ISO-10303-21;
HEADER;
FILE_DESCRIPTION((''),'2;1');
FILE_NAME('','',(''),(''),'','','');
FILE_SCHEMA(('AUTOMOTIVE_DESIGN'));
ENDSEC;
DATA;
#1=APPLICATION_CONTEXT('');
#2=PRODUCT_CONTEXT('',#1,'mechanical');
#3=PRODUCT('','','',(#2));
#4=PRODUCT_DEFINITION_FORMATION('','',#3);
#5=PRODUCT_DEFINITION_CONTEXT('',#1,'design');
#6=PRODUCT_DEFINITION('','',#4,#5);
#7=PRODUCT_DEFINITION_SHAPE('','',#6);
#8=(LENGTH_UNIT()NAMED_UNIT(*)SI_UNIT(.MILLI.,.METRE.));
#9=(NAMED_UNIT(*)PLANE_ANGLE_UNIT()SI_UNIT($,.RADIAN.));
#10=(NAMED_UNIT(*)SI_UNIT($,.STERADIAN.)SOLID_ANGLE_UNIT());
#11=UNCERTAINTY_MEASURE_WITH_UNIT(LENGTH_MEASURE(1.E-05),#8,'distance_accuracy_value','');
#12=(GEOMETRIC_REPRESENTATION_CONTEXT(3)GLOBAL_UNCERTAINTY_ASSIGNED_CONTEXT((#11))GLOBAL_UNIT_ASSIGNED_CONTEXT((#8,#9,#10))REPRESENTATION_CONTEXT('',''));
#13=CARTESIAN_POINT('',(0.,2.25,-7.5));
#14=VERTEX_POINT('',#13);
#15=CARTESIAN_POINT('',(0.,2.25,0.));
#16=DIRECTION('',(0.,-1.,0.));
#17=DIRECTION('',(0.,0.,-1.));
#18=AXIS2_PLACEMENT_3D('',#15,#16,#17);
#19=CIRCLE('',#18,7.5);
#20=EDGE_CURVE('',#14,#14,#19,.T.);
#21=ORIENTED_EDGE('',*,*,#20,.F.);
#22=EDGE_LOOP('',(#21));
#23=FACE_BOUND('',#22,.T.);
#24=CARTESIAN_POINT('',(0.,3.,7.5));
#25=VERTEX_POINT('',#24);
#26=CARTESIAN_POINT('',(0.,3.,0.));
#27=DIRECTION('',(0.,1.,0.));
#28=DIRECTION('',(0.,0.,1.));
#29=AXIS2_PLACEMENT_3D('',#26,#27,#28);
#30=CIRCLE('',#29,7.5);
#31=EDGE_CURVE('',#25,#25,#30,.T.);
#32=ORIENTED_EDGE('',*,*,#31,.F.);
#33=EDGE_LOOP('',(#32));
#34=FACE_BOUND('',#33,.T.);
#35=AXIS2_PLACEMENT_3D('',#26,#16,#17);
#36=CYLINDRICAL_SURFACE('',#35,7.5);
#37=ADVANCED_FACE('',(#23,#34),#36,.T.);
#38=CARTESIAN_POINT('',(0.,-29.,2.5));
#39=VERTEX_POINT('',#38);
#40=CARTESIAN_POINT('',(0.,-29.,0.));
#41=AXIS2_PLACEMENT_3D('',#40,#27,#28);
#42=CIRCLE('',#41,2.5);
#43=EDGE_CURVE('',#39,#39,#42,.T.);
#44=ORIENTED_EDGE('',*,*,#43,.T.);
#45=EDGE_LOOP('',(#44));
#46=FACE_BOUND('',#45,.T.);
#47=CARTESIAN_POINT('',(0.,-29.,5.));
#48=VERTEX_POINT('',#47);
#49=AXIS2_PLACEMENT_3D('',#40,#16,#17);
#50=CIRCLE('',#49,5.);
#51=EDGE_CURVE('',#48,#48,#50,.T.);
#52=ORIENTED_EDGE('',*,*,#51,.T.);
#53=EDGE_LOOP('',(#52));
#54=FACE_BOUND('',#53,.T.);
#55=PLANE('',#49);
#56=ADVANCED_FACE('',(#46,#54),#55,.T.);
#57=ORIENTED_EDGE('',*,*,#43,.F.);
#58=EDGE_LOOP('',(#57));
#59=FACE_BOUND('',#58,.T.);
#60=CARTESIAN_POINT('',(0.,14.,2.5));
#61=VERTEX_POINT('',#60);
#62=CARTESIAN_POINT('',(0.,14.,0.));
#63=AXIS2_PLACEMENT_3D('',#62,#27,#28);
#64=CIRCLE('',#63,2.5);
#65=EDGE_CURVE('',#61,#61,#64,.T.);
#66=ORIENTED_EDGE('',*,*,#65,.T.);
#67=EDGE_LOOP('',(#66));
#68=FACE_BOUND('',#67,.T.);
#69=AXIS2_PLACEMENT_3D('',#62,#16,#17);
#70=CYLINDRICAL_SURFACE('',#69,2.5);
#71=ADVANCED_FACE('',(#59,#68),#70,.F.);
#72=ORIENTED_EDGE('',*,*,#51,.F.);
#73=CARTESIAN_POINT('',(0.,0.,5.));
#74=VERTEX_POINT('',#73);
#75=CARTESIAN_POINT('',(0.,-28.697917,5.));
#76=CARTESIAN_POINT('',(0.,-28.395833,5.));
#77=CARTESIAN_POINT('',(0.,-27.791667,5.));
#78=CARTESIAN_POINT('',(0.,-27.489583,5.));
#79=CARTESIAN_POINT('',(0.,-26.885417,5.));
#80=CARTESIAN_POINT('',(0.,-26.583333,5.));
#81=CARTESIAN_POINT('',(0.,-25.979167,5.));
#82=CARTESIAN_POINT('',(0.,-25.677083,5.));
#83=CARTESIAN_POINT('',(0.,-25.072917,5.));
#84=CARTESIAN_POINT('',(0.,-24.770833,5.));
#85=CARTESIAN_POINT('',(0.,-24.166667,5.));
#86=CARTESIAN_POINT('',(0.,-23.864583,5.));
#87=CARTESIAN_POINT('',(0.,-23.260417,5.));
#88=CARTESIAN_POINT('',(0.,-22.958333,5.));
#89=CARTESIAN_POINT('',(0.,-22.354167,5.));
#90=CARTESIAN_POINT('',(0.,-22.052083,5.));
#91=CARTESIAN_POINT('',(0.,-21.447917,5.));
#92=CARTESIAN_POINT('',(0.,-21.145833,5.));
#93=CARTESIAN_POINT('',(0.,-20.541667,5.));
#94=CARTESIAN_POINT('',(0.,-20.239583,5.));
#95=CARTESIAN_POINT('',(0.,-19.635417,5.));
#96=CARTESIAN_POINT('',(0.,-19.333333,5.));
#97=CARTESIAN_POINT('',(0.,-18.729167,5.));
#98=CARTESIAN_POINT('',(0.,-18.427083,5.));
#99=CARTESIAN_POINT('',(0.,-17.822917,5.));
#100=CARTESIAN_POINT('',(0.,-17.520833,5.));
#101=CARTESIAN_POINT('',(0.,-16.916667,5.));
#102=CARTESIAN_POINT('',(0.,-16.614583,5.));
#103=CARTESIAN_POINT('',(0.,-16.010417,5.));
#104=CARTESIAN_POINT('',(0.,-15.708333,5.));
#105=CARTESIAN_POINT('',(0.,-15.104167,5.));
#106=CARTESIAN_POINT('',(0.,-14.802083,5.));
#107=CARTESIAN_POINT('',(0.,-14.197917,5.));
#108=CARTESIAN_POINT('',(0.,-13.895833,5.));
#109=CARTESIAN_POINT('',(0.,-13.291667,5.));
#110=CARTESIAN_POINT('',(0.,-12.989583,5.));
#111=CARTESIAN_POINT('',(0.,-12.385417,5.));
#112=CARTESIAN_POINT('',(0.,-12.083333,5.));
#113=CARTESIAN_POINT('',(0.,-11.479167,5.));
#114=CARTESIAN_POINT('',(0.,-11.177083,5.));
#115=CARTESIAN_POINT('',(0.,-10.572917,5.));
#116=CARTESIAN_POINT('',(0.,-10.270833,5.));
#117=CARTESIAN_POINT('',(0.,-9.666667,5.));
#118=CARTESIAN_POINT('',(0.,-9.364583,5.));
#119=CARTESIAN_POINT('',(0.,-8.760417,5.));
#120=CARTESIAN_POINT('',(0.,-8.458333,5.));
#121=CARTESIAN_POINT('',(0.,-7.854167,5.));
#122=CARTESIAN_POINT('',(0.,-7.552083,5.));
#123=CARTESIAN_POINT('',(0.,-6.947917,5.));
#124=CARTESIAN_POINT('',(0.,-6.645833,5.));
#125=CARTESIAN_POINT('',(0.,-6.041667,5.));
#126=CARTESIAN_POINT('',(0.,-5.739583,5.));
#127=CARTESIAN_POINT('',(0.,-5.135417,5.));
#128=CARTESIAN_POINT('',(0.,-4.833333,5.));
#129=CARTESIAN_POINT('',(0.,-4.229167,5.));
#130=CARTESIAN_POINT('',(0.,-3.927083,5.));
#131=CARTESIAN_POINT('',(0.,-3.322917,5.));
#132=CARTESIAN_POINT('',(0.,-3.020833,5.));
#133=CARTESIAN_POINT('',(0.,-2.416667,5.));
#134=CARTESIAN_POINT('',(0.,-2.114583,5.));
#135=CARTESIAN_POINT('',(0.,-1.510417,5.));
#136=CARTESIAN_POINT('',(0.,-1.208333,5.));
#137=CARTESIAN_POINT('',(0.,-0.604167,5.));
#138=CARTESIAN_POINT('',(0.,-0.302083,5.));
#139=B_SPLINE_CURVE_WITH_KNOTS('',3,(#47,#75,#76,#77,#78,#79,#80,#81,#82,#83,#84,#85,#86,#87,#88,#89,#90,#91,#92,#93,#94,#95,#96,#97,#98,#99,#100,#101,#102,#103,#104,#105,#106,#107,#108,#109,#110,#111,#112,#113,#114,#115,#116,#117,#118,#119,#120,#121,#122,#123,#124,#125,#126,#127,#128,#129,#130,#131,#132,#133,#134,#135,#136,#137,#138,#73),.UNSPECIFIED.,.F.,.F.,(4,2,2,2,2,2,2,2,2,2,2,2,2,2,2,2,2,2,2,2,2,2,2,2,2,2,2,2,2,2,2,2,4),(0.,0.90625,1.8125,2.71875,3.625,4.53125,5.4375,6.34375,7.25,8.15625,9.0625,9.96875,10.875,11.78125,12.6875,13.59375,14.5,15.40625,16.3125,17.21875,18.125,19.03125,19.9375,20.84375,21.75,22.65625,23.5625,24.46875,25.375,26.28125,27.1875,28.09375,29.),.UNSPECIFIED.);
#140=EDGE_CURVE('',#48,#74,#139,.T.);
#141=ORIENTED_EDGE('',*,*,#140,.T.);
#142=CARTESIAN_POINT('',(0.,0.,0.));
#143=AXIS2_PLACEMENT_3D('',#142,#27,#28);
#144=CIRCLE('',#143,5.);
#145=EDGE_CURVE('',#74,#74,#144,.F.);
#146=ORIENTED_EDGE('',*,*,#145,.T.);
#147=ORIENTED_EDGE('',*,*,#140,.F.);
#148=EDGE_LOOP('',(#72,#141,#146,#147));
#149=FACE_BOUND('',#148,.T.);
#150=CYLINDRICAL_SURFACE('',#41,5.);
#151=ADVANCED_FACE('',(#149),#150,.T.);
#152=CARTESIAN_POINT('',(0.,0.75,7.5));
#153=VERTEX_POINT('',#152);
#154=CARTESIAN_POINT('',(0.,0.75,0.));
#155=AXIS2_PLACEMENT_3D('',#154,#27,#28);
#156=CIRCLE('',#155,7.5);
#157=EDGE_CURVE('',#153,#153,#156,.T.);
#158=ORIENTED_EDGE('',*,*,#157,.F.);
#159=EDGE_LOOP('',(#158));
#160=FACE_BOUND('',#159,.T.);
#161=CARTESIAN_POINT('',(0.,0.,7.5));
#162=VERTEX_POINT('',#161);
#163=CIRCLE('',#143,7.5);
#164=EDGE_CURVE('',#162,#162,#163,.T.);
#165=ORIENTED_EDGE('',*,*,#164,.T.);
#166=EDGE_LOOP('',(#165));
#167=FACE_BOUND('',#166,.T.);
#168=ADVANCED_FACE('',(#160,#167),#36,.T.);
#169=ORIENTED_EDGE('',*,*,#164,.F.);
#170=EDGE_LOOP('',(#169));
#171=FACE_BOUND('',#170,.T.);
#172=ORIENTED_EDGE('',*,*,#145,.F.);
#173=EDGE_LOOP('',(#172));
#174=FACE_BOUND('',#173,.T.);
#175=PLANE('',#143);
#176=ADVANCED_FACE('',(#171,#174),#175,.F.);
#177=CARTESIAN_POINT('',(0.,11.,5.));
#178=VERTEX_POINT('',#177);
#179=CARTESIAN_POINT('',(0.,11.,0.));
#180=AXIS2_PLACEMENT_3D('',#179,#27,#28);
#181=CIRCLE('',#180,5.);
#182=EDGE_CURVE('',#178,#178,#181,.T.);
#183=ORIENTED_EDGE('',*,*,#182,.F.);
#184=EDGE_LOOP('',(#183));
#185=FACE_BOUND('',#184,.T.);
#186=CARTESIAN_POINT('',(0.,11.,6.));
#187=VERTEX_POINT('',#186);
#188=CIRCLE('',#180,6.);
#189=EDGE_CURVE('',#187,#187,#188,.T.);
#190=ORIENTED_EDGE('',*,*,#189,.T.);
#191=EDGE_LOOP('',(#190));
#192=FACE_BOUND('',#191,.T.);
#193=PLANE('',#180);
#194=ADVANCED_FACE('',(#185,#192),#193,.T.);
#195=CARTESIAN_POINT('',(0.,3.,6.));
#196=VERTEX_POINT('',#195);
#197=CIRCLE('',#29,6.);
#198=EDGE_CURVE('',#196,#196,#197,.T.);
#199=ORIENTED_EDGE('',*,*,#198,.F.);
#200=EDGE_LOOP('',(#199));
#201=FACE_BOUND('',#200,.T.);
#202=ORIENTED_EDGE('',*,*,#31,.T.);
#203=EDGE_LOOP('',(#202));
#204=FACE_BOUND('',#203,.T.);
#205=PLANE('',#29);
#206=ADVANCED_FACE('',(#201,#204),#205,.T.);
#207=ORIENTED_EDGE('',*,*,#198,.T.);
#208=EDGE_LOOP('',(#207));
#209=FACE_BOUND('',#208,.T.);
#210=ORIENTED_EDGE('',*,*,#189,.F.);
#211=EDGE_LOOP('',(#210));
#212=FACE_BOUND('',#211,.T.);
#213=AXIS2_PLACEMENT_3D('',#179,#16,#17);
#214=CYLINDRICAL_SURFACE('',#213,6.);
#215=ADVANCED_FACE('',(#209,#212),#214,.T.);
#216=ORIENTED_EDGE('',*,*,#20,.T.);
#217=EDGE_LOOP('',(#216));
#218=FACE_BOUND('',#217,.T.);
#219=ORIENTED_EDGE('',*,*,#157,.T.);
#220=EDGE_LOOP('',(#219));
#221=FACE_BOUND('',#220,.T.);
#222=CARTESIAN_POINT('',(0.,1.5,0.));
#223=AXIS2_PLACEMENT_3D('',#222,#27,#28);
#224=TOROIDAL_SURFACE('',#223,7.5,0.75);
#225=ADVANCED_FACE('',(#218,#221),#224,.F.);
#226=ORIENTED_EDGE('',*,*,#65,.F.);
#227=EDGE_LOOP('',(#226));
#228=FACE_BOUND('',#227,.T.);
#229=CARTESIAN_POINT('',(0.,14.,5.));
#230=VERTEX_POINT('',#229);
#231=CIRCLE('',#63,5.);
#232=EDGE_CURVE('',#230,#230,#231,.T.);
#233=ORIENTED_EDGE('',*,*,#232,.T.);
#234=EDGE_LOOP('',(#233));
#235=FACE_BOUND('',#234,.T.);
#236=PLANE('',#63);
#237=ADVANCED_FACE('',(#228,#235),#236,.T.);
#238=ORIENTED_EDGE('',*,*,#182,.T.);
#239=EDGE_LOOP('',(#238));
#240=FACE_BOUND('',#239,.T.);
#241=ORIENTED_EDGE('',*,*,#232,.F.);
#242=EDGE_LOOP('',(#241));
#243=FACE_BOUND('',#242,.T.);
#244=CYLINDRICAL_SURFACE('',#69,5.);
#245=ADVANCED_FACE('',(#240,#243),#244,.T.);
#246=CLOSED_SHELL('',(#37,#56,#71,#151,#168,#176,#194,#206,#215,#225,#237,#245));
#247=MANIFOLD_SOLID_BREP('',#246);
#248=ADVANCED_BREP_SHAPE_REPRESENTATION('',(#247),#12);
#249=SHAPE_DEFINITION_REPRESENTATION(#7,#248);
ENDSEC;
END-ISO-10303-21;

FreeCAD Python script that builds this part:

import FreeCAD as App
import Part
import Sketcher
from FreeCAD import Vector

doc = App.newDocument("Part")
body = doc.addObject("PartDesign::Body", "Body")

# Sketch on XZ plane
sketch1 = doc.addObject("Sketcher::SketchObject", "Sketch")
body.addObject(sketch1)
sketch1.AttachmentSupport = (doc.XZ_Plane, [""])
sketch1.MapMode = "FlatFace"
sketch1.addGeometry(Part.Circle(Vector(0, 0, 0), Vector(0, 0, 1), 8), False)
sketch1.addConstraint([
    Sketcher.Constraint("Coincident", 0, 3, -1, 1),
    Sketcher.Constraint("Diameter", 0, 15.0),
])
pad1 = doc.addObject("PartDesign::Pad", "Pad")
body.addObject(pad1)
pad1.Profile = sketch1
pad1.Length = 3
pad1.Reversed = True

# Sketch on YZ plane
sketch2 = doc.addObject("Sketcher::SketchObject", "Sketch001")
body.addObject(sketch2)
sketch2.AttachmentSupport = (doc.YZ_Plane, [""])
sketch2.MapMode = "FlatFace"
sketch2.addGeometry(Part.Circle(Vector(1.5, -7.5, 0), Vector(0, 0, 1), 0.8), False)
sketch2.addConstraint([
    Sketcher.Constraint("Diameter", 0, 1.5),
    Sketcher.Constraint("DistanceX", -1, 1, 0, 3, 1.5),
    Sketcher.Constraint("DistanceY", 0, 3, -1, 1, 7.5),
])
groove = doc.addObject("PartDesign::Groove", "Groove")
body.addObject(groove)
groove.Profile = sketch2
groove.ReferenceAxis = (sketch2, ["H_Axis"])
groove.Angle = 360

# Sketch on XZ plane
sketch3 = doc.addObject("Sketcher::SketchObject", "Sketch002")
body.addObject(sketch3)
sketch3.AttachmentSupport = (doc.XZ_Plane, [""])
sketch3.MapMode = "FlatFace"
sketch3.addGeometry(Part.Circle(Vector(0, 0, 0), Vector(0, 0, 1), 5), False)
sketch3.addConstraint([
    Sketcher.Constraint("Coincident", 0, 3, -1, 1),
    Sketcher.Constraint("Diameter", 0, 10.0),
])
pad2 = doc.addObject("PartDesign::Pad", "Pad001")
body.addObject(pad2)
pad2.Profile = sketch3
pad2.Length = 29

# Sketch on XZ plane
sketch4 = doc.addObject("Sketcher::SketchObject", "Sketch003")
body.addObject(sketch4)
sketch4.AttachmentSupport = (doc.XZ_Plane, [""])
sketch4.MapMode = "FlatFace"
sketch4.AttachmentOffset = App.Placement(Vector(0, 0, -3), App.Rotation())
sketch4.addGeometry(Part.Circle(Vector(0, 0, 0), Vector(0, 0, 1), 6), False)
sketch4.addConstraint([
    Sketcher.Constraint("Coincident", 0, 3, -1, 1),
    Sketcher.Constraint("Diameter", 0, 12.0),
])
pad3 = doc.addObject("PartDesign::Pad", "Pad002")
body.addObject(pad3)
pad3.Profile = sketch4
pad3.Length = 8
pad3.Reversed = True

# Sketch on XZ plane
sketch5 = doc.addObject("Sketcher::SketchObject", "Sketch004")
body.addObject(sketch5)
sketch5.AttachmentSupport = (doc.XZ_Plane, [""])
sketch5.MapMode = "FlatFace"
sketch5.AttachmentOffset = App.Placement(Vector(0, 0, -14), App.Rotation())
sketch5.addGeometry(Part.Circle(Vector(0, 0, 0), Vector(0, 0, 1), 5), False)
sketch5.addConstraint([
    Sketcher.Constraint("Coincident", 0, 3, -1, 1),
    Sketcher.Constraint("Diameter", 0, 10.0),
])
pad4 = doc.addObject("PartDesign::Pad", "Pad003")
body.addObject(pad4)
pad4.Profile = sketch5
pad4.Length = 3

# Sketch on XZ plane
sketch6 = doc.addObject("Sketcher::SketchObject", "Sketch005")
body.addObject(sketch6)
sketch6.AttachmentSupport = (doc.XZ_Plane, [""])
sketch6.MapMode = "FlatFace"
sketch6.AttachmentOffset = App.Placement(Vector(0, 0, 29), App.Rotation())
sketch6.addGeometry(Part.Circle(Vector(0, 0, 0), Vector(0, 0, 1), 2.5), False)
sketch6.addConstraint([
    Sketcher.Constraint("Coincident", 0, 3, -1, 1),
    Sketcher.Constraint("Diameter", 0, 5.0),
])
pocket1 = doc.addObject("PartDesign::Pocket", "Pocket")
body.addObject(pocket1)
pocket1.Profile = sketch6
pocket1.Type = "ThroughAll"

doc.recompute()
